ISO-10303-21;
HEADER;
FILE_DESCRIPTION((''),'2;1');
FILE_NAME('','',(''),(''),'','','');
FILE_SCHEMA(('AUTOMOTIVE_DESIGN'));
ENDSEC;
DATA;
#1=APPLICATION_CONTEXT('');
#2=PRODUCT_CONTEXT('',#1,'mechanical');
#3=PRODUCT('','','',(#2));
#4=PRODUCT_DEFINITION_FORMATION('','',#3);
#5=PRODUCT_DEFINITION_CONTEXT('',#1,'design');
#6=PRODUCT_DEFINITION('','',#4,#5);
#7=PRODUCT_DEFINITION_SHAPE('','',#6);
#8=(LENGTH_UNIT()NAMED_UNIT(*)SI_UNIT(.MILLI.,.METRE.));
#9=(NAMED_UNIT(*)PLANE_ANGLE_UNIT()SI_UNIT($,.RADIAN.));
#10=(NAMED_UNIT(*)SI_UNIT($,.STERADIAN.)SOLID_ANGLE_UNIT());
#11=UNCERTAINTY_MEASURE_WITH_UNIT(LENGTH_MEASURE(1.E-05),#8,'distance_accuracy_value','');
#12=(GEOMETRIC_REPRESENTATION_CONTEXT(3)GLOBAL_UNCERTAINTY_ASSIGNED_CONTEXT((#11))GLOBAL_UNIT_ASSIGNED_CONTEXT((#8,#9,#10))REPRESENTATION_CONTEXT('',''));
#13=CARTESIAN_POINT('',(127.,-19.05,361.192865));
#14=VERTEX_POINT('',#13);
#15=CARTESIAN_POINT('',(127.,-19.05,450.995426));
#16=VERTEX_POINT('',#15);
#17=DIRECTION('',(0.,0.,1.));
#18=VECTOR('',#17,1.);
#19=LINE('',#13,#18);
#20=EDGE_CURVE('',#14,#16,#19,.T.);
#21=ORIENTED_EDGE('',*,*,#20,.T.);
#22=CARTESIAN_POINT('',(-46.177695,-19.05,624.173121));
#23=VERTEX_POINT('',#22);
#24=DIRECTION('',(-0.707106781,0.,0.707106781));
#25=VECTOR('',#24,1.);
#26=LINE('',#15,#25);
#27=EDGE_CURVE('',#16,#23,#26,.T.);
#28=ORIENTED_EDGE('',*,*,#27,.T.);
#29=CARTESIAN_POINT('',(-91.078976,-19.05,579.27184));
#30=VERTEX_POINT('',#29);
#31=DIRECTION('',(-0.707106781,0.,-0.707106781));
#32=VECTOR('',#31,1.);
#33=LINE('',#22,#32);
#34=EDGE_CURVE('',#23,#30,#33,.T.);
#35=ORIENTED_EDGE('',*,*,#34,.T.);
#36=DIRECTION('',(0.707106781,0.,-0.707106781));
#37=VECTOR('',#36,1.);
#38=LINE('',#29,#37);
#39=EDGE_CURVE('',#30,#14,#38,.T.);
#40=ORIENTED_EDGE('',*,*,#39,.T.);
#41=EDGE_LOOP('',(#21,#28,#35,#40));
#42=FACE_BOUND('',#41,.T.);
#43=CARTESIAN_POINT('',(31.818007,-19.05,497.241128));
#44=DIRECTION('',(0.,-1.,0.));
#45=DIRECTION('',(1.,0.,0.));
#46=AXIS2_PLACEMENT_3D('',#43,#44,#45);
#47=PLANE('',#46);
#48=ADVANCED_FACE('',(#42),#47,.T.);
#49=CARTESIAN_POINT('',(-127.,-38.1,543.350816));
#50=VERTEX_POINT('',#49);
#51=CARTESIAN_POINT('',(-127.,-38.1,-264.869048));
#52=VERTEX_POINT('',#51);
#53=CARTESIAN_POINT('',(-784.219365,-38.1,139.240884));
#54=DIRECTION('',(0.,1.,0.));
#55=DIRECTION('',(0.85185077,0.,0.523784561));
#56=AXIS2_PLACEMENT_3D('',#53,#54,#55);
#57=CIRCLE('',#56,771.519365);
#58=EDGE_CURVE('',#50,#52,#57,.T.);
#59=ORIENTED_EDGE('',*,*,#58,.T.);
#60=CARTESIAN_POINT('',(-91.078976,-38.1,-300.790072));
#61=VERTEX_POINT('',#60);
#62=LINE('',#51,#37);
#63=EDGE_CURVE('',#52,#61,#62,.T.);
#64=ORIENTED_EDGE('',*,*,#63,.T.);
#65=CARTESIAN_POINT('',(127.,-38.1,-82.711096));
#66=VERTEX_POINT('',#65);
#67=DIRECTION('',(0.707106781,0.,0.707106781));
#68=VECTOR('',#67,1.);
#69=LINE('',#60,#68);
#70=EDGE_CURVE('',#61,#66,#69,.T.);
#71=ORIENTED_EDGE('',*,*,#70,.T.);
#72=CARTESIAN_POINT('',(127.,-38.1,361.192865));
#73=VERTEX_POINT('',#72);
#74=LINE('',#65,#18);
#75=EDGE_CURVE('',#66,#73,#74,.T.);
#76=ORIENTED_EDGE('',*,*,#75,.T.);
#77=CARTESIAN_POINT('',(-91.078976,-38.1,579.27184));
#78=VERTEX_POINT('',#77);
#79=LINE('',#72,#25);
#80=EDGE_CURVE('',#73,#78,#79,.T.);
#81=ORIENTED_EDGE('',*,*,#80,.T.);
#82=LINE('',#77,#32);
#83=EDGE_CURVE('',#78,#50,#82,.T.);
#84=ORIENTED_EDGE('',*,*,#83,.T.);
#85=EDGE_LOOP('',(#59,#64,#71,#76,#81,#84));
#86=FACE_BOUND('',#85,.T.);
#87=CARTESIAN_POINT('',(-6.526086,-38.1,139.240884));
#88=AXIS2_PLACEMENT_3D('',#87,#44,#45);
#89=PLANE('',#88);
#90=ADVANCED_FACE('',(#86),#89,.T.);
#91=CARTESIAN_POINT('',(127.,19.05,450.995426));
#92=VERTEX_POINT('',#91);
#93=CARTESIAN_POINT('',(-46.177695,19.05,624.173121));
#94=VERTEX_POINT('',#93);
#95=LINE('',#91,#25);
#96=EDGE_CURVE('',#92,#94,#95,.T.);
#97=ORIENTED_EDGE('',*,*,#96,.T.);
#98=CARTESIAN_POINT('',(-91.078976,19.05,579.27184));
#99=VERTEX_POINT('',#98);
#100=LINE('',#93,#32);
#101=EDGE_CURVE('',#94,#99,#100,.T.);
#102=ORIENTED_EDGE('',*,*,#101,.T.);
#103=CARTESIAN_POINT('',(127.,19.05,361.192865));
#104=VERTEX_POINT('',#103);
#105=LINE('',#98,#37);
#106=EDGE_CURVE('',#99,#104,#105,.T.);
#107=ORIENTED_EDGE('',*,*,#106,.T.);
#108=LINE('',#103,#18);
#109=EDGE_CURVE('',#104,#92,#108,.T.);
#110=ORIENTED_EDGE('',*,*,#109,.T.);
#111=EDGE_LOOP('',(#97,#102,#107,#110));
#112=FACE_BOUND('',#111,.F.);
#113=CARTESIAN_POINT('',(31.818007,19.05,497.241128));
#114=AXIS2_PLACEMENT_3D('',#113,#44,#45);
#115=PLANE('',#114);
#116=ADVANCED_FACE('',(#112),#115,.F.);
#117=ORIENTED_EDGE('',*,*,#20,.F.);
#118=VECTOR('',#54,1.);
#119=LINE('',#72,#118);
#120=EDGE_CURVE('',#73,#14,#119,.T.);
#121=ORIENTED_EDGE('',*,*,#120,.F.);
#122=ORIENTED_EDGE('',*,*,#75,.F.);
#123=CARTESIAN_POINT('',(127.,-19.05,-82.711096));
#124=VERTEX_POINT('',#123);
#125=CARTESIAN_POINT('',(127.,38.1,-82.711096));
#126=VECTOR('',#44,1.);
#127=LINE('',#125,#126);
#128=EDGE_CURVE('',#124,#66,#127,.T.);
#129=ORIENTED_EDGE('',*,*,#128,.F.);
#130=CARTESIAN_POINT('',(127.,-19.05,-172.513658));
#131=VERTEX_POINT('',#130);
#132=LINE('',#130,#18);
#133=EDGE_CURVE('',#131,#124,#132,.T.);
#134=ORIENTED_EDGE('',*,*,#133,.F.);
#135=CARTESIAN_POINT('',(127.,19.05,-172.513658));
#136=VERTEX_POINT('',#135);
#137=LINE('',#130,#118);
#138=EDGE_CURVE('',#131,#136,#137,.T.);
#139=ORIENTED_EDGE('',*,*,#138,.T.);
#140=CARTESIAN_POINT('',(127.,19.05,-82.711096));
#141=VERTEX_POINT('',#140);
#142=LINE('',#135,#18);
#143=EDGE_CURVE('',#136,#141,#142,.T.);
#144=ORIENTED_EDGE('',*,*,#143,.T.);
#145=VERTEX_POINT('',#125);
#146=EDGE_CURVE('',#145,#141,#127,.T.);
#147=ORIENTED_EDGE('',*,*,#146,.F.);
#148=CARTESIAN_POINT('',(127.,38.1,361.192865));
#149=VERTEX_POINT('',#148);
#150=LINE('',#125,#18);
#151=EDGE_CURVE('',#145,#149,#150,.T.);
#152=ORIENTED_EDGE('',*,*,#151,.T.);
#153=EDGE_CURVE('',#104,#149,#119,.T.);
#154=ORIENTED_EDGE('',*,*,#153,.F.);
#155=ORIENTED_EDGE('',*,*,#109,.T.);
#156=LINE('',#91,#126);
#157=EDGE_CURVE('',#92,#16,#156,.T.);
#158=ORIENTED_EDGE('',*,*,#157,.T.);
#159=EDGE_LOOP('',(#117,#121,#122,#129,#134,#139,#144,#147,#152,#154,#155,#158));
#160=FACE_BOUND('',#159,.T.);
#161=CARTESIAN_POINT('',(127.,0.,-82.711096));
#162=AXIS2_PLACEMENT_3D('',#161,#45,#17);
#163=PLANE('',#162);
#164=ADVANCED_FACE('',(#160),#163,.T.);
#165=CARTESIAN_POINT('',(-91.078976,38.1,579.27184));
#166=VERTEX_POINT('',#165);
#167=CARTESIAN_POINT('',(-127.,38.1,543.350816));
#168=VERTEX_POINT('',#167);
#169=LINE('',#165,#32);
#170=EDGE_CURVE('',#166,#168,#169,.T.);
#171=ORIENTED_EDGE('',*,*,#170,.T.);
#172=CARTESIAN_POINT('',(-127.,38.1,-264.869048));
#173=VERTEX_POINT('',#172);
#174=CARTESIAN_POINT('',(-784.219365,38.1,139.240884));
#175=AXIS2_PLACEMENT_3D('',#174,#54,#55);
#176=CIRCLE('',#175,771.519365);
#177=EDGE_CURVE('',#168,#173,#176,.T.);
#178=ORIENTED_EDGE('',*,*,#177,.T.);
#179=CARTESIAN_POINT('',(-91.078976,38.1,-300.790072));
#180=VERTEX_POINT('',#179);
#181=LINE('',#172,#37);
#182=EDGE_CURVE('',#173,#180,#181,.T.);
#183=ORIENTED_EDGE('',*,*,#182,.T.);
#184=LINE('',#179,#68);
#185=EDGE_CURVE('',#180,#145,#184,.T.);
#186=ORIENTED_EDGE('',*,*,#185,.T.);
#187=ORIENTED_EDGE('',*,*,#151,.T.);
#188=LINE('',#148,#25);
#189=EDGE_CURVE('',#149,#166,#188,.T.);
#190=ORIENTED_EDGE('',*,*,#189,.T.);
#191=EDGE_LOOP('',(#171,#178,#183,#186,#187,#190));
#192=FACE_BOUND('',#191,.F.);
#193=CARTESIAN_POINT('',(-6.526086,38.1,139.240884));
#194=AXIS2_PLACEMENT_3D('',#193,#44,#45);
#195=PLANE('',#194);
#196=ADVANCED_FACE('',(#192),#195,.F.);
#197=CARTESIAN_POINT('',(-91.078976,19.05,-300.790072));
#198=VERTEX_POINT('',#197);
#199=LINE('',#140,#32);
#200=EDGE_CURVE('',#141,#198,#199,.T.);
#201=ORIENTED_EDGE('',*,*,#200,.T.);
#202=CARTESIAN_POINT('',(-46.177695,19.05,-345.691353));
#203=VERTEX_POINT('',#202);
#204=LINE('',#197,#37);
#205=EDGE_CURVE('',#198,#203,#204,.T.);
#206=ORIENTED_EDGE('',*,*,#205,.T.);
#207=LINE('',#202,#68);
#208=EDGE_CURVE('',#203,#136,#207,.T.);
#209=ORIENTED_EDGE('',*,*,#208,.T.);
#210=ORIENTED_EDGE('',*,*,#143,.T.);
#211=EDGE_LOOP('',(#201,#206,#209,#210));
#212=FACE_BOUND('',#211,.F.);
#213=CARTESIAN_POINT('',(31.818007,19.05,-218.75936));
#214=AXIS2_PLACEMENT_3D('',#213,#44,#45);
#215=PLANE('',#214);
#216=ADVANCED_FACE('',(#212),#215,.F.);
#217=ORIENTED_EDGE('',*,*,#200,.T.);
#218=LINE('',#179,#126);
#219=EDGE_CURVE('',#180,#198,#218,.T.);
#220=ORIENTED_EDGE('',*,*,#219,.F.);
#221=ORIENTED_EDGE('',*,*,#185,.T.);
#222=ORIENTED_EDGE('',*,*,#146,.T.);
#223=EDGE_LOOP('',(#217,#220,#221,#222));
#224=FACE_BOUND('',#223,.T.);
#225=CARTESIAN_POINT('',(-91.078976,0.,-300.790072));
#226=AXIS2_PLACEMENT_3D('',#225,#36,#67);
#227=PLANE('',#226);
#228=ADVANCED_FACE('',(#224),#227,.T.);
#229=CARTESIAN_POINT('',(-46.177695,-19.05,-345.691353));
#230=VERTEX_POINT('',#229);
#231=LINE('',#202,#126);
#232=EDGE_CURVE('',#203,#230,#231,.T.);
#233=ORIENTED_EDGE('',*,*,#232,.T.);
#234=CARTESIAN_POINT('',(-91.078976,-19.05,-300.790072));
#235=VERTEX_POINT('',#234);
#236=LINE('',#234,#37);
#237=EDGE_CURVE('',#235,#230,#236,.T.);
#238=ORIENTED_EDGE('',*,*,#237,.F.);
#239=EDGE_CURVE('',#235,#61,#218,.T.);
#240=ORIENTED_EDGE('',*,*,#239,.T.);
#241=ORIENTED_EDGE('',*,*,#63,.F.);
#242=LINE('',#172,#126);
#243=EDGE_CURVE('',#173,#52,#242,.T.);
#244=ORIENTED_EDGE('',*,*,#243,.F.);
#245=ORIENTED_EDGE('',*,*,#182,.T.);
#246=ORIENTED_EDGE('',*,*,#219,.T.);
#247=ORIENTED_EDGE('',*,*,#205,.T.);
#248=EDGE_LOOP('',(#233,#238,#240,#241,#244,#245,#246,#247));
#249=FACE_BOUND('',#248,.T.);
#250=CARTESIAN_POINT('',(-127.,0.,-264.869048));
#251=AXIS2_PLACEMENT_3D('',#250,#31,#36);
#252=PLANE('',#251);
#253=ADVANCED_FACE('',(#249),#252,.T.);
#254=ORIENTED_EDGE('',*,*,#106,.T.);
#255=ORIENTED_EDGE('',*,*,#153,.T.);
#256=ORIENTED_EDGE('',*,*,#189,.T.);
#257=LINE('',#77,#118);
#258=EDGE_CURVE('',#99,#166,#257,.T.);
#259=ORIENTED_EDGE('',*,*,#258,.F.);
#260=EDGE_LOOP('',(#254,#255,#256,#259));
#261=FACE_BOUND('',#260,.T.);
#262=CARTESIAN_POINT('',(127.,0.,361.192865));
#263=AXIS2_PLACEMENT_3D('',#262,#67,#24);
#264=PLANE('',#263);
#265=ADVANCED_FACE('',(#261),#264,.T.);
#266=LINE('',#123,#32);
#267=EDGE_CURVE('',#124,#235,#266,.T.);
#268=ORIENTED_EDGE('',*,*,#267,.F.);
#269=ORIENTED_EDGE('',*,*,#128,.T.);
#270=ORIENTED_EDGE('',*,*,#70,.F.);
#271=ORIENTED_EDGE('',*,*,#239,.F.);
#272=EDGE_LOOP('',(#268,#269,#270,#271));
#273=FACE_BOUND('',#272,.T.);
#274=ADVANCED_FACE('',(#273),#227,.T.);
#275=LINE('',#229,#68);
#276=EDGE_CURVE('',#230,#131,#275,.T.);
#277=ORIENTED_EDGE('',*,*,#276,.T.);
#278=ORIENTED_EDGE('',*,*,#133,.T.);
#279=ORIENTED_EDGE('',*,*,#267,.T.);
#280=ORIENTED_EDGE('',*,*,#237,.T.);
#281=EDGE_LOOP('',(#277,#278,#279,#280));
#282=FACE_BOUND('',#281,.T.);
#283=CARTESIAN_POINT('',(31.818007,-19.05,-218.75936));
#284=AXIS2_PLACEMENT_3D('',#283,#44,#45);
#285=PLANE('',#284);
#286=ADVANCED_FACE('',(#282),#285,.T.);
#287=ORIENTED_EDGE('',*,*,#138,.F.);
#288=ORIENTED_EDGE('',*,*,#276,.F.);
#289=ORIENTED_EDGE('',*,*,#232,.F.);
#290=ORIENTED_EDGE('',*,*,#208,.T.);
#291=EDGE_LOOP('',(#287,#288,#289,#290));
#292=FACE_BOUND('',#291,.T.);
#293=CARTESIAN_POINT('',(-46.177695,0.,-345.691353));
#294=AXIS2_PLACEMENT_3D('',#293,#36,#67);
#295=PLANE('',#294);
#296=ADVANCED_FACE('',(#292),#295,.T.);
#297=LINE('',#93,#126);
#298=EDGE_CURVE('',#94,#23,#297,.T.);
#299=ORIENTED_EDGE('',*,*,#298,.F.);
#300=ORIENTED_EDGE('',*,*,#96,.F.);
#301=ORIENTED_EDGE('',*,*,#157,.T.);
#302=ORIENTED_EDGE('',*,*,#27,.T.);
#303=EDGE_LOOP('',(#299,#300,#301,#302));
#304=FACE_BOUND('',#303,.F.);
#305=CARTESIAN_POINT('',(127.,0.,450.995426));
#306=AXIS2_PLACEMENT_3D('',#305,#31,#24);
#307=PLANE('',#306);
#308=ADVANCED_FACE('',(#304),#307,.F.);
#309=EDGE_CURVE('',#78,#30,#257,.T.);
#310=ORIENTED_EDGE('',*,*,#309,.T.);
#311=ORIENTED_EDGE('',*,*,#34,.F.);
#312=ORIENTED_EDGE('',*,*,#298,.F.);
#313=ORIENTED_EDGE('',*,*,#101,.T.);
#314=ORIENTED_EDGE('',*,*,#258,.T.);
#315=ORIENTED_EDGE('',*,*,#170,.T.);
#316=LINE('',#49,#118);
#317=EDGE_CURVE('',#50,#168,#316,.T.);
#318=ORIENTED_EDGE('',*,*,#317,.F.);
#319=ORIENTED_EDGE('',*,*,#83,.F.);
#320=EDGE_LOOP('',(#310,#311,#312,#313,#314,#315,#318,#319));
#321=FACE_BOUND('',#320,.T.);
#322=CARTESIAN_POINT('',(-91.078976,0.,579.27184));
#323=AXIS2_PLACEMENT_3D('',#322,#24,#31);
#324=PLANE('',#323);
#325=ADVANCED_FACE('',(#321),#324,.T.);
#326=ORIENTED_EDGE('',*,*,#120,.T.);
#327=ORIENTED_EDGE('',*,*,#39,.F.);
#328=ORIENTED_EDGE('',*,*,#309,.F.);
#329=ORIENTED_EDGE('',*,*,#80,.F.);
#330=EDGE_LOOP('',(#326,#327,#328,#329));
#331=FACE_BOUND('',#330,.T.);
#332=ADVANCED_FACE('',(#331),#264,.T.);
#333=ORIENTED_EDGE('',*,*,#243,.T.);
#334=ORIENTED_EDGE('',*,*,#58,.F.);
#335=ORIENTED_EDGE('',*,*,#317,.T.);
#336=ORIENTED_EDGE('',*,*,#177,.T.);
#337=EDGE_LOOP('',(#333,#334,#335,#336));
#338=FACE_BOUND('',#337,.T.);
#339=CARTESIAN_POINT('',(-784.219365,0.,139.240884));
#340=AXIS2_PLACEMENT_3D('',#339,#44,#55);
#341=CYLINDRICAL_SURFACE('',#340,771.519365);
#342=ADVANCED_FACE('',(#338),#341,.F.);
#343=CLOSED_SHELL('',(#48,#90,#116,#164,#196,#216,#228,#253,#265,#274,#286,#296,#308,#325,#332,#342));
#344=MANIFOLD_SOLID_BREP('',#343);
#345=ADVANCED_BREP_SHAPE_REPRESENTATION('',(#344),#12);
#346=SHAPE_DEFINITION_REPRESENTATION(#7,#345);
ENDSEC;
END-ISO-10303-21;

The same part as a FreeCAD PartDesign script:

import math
import FreeCAD as App
import Part
import Sketcher
Q = App.Units.Quantity


def add_polygon(sketch, points):
    """Adds a closed chain of lines whose ends are joined by coincident constraints."""
    first, n = sketch.GeometryCount, len(points)
    for a, b in zip(points, points[1:] + points[:1]):
        sketch.addGeometry(Part.LineSegment(App.Vector(*a, 0), App.Vector(*b, 0)), False)
    for i in range(n):
        sketch.addConstraint(Sketcher.Constraint("Coincident", first + i, 2, first + (i + 1) % n, 1))

doc = App.newDocument("Part")
params = doc.addObject("Spreadsheet::Sheet", "Params")
for row, (alias, value) in enumerate([
    ("sketch1_length", "2 in"),
    ("pad1_length", "3 in"),
    ("sketch2_length", "2.5 in"),
    ("pad2_length", "1.5 in"),
], start=1):
    params.set(f"A{row}", alias)
    params.set(f"B{row}", "=" + value)
    params.setAlias(f"B{row}", alias)

body = doc.addObject("PartDesign::Body", "Body")

# Sketch on XZ plane
sketch1 = body.newObject("Sketcher::SketchObject", "Sketch")
sketch1.AttachmentSupport = (doc.getObject("XZ_Plane"), [""])
sketch1.MapMode = "FlatFace"
sketch1.addGeometry(Part.ArcOfCircle(Part.Circle(App.Vector(-784, 139, 0), App.Vector(0, 0, 1), 772), math.radians(-32), math.radians(32)), False)
sketch1.addGeometry(Part.LineSegment(App.Vector(-127, -265, 0), App.Vector(-91, -301, 0)), False)
sketch1.addGeometry(Part.LineSegment(App.Vector(-91, -301, 0), App.Vector(127, -83, 0)), False)
sketch1.addGeometry(Part.LineSegment(App.Vector(127, -83, 0), App.Vector(127, 361, 0)), False)
sketch1.addGeometry(Part.LineSegment(App.Vector(127, 361, 0), App.Vector(-91, 579, 0)), False)
sketch1.addGeometry(Part.LineSegment(App.Vector(-91, 579, 0), App.Vector(-127, 543, 0)), False)
sketch1.addConstraint(Sketcher.Constraint("Coincident", 0, 1, 1, 1))
sketch1.addConstraint(Sketcher.Constraint("Coincident", 1, 2, 2, 1))
sketch1.addConstraint(Sketcher.Constraint("Coincident", 2, 2, 3, 1))
sketch1.addConstraint(Sketcher.Constraint("Coincident", 3, 2, 4, 1))
sketch1.addConstraint(Sketcher.Constraint("Coincident", 4, 2, 5, 1))
sketch1.addConstraint(Sketcher.Constraint("Coincident", 5, 2, 0, 2))
sketch1.addConstraint(Sketcher.Constraint("Vertical", 3))
sketch1.addConstraint(Sketcher.Constraint("Perpendicular", 1, 2))
sketch1.addConstraint(Sketcher.Constraint("Perpendicular", 2, 4))
sketch1.addConstraint(Sketcher.Constraint("Perpendicular", 4, 5))
sketch1.addConstraint(Sketcher.Constraint("Vertical", 1, 2, 4, 2))
sketch1.addConstraint(Sketcher.Constraint("Equal", 2, 4))
sketch1.addConstraint(Sketcher.Constraint("Equal", 1, 5))
sketch1.addConstraint(Sketcher.Constraint("Distance", 1, Q("2 in")))
sketch1.addConstraint(Sketcher.Constraint("DistanceX", -1, 1, 2, 2, Q("5 in")))
sketch1.addConstraint(Sketcher.Constraint("DistanceX", 5, 2, -1, 1, Q("5 in")))
sketch1.addConstraint(Sketcher.Constraint("Radius", 0, 771.519365))
sketch1.addConstraint(Sketcher.Constraint("DistanceY", 3, 1, 3, 2, 443.903961))
sketch1.addConstraint(Sketcher.Constraint("DistanceY", 1, 2, -1, 1, 300.790072))
sketch1.setExpression("Constraints[13]", "Params.sketch1_length")
pad1 = body.newObject("PartDesign::Pad", "Pad")
pad1.Profile = sketch1
pad1.setExpression("Length", "Params.pad1_length")
pad1.Midplane = True

# Sketch on XZ plane
sketch2 = body.newObject("Sketcher::SketchObject", "Sketch001")
sketch2.AttachmentSupport = (doc.getObject("XZ_Plane"), [""])
sketch2.MapMode = "FlatFace"
add_polygon(sketch2, [(127, 361), (127, 451), (-46, 624), (-91, 579)])  # lines 0-3
add_polygon(sketch2, [(127, -83), (-91, -301), (-46, -346), (127, -173)])  # lines 4-7
sketch2.addConstraint(Sketcher.Constraint("Vertical", 0))
sketch2.addConstraint(Sketcher.Constraint("Vertical", 7))
sketch2.addConstraint(Sketcher.Constraint("Perpendicular", 1, 2))
sketch2.addConstraint(Sketcher.Constraint("Perpendicular", 2, 3))
sketch2.addConstraint(Sketcher.Constraint("Perpendicular", 3, 4))
sketch2.addConstraint(Sketcher.Constraint("Perpendicular", 4, 5))
sketch2.addConstraint(Sketcher.Constraint("Perpendicular", 5, 6))
sketch2.addConstraint(Sketcher.Constraint("Vertical", 2, 2, 4, 2))
sketch2.addConstraint(Sketcher.Constraint("Vertical", 1, 2, 5, 2))
sketch2.addConstraint(Sketcher.Constraint("Vertical", 3, 2, 6, 2))
sketch2.addConstraint(Sketcher.Constraint("Equal", 3, 4))
sketch2.addConstraint(Sketcher.Constraint("DistanceX", -1, 1, 0, 2, Q("5 in")))
sketch2.addConstraint(Sketcher.Constraint("Distance", 2, Q("2.5 in")))
sketch2.addConstraint(Sketcher.Constraint("DistanceY", -1, 1, 1, 2, 624.173121))
sketch2.addConstraint(Sketcher.Constraint("DistanceY", 4, 2, -1, 1, 300.790072))
sketch2.addConstraint(Sketcher.Constraint("DistanceY", 5, 2, 0, 2, 796.686779))
sketch2.setExpression("Constraints[20]", "Params.sketch2_length")
pad2 = body.newObject("PartDesign::Pad", "Pad001")
pad2.Profile = sketch2
pad2.setExpression("Length", "Params.pad2_length")
pad2.Midplane = True

doc.recompute()
